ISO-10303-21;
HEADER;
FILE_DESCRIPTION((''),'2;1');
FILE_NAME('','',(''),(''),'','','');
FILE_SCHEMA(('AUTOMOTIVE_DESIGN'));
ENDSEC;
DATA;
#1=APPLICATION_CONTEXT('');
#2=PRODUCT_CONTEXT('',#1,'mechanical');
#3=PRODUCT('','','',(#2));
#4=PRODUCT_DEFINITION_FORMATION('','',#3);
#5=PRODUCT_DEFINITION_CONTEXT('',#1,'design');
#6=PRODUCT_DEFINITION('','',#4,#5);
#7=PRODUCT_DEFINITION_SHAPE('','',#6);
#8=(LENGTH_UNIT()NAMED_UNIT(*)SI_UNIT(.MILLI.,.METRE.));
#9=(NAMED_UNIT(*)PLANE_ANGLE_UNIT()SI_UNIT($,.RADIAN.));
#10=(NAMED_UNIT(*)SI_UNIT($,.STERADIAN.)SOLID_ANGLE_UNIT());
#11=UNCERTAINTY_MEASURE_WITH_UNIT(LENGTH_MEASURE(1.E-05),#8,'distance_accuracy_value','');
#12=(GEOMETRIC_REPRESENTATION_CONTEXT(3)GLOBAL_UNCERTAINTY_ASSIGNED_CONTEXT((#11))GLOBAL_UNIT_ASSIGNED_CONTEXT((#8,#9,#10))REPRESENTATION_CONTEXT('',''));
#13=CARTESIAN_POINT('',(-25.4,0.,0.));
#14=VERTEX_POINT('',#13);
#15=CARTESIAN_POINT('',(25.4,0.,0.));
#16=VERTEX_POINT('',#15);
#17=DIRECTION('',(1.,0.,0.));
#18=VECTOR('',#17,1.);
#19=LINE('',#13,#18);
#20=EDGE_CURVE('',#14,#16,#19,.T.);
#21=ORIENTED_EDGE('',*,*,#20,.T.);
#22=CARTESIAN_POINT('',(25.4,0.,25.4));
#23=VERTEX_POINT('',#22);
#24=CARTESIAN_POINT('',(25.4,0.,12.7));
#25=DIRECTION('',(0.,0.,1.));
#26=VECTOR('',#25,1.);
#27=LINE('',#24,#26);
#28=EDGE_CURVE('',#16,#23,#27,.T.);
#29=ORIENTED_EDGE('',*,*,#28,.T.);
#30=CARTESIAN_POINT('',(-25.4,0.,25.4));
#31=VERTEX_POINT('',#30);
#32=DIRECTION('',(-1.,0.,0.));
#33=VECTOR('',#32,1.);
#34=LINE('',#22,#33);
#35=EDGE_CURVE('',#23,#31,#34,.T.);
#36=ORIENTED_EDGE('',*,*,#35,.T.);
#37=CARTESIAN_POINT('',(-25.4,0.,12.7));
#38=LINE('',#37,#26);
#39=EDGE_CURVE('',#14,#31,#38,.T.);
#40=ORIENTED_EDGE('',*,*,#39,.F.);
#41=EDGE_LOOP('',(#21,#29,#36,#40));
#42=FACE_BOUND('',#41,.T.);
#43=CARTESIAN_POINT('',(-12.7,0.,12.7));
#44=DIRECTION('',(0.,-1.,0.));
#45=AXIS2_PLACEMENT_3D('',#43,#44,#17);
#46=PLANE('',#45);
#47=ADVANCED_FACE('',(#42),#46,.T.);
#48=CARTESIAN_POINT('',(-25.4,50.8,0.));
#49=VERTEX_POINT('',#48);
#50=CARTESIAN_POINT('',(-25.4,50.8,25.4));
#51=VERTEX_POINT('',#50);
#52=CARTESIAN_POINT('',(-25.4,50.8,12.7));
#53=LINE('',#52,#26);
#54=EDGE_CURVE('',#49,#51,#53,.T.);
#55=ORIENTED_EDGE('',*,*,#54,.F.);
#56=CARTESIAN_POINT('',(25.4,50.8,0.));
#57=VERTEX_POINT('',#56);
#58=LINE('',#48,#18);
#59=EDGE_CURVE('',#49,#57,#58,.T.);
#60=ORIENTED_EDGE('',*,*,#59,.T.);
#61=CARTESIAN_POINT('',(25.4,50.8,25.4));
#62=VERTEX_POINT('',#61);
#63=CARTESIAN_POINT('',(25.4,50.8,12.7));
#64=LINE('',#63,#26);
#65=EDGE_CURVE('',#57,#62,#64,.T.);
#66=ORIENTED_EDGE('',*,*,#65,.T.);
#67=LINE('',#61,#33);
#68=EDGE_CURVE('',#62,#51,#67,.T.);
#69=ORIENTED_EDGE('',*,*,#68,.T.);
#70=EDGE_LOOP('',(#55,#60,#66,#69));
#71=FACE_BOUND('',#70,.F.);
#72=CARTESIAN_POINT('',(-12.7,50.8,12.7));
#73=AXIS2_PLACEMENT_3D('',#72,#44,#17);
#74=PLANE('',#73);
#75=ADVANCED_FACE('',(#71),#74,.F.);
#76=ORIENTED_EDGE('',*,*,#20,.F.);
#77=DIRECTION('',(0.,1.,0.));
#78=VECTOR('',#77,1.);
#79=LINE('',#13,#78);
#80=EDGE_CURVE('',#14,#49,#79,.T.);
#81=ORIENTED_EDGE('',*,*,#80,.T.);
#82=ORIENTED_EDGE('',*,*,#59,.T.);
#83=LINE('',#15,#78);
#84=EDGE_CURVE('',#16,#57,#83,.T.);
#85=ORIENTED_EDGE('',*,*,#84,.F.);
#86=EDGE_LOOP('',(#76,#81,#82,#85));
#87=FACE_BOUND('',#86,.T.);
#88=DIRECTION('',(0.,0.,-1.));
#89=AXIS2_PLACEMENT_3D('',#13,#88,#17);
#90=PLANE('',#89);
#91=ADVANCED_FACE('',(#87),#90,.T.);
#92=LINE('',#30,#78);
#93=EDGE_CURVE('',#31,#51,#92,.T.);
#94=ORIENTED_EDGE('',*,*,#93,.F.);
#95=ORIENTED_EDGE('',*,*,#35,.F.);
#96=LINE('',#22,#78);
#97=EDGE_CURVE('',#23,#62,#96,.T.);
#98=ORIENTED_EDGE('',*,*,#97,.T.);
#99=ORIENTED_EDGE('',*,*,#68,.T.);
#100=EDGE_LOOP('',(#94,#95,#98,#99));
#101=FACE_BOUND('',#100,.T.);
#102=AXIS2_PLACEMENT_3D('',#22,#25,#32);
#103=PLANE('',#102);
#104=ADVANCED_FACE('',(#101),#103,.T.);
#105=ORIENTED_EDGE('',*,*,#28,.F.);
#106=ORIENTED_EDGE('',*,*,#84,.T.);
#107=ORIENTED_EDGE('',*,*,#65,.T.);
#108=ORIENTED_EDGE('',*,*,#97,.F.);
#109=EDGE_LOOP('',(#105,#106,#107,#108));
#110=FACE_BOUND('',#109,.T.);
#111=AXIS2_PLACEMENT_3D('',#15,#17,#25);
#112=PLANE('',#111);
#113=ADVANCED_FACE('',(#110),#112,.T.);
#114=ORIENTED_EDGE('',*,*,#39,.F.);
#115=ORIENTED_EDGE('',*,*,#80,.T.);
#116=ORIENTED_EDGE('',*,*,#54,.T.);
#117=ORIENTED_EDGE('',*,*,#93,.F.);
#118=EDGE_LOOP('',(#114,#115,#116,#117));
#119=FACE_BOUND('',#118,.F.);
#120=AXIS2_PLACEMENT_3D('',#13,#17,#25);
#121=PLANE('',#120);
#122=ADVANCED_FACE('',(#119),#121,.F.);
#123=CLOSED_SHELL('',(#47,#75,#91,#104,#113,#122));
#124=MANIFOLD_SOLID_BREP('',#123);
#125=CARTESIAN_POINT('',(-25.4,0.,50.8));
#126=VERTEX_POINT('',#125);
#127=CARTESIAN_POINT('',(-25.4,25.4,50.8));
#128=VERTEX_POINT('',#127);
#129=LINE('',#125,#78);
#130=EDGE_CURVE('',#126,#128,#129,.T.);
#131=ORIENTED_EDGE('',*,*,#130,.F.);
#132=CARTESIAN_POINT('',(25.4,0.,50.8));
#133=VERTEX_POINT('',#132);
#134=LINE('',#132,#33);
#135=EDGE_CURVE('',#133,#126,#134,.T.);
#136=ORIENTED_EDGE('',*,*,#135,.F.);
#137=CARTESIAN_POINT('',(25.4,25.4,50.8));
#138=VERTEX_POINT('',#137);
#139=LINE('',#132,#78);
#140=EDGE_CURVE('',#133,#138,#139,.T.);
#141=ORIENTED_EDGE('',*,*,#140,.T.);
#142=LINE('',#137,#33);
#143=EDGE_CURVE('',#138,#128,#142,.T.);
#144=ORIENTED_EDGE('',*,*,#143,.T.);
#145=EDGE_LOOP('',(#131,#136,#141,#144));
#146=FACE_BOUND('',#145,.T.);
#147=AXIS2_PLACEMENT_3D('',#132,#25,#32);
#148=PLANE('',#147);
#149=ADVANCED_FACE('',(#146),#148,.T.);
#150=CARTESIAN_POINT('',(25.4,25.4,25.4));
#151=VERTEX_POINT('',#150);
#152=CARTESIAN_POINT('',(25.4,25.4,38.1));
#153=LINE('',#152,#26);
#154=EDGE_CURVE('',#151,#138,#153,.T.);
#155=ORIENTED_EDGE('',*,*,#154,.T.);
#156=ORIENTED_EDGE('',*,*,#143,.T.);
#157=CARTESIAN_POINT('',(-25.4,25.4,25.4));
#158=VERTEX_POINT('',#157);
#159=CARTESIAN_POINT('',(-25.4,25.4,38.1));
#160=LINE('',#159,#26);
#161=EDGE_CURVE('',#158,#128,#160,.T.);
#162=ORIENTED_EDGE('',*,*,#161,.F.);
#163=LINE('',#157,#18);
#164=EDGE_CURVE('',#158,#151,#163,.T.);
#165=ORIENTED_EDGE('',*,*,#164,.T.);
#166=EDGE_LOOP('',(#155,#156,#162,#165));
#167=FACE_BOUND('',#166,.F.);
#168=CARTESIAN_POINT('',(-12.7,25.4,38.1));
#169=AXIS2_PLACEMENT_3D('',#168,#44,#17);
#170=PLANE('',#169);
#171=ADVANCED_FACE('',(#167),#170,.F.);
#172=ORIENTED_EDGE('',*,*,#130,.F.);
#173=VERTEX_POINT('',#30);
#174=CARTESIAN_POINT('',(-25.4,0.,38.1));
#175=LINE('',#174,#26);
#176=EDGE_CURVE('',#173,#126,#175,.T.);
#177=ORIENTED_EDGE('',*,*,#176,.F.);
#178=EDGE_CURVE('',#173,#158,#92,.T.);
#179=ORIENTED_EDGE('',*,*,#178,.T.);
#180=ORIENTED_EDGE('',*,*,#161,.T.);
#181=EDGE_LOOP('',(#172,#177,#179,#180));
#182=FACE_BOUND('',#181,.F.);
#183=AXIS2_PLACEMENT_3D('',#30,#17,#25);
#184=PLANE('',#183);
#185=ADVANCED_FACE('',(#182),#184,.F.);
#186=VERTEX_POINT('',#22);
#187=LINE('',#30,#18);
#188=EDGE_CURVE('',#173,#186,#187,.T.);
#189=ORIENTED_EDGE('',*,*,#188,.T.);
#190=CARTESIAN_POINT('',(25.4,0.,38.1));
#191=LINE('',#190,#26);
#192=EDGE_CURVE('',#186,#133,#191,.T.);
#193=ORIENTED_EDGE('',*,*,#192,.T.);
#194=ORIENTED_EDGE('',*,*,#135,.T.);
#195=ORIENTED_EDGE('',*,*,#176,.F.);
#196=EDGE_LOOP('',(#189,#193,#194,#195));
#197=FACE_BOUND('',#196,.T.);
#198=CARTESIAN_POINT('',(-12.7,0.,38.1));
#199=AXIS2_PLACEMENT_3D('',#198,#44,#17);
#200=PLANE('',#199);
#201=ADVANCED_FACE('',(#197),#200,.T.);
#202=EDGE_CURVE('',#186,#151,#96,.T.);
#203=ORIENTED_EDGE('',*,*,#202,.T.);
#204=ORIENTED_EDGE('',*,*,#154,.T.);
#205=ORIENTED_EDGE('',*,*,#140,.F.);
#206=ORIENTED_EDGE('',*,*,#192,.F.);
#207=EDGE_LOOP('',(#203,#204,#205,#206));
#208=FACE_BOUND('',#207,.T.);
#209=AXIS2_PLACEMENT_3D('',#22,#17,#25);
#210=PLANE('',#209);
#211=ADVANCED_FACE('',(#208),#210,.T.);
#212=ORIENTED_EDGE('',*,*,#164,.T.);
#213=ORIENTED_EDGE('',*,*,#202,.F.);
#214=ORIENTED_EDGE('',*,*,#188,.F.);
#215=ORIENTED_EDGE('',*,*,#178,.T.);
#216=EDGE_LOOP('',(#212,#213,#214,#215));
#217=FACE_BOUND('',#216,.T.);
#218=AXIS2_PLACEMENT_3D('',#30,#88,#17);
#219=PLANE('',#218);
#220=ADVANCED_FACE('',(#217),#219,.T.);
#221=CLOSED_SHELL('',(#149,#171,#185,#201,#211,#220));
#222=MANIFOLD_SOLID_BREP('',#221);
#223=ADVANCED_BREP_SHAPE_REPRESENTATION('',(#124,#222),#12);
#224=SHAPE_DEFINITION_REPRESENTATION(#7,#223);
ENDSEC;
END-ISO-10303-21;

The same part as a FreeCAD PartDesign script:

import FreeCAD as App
import Part
import Sketcher
from FreeCAD import Vector
Q = App.Units.Quantity


def add_polygon(sketch, points):
    """Adds a closed chain of lines whose ends are joined by coincident constraints."""
    first, n = sketch.GeometryCount, len(points)
    for a, b in zip(points, points[1:] + points[:1]):
        sketch.addGeometry(Part.LineSegment(App.Vector(*a, 0), App.Vector(*b, 0)), False)
    for i in range(n):
        sketch.addConstraint(Sketcher.Constraint("Coincident", first + i, 2, first + (i + 1) % n, 1))

doc = App.newDocument("Part")
params = doc.addObject("Spreadsheet::Sheet", "Params")
for row, (alias, value) in enumerate([
    ("sketch1_width", "2 in"),
    ("sketch1_height", "1 in"),
    ("pad1_length", "2 in"),
    ("sketch2_width", "2 in"),
    ("sketch2_height", "1 in"),
    ("pad2_length", "1 in"),
], start=1):
    params.set(f"A{row}", alias)
    params.set(f"B{row}", "=" + value)
    params.setAlias(f"B{row}", alias)

body = doc.addObject("PartDesign::Body", "Body")

# Sketch on XZ plane
sketch1 = doc.addObject("Sketcher::SketchObject", "Sketch")
body.addObject(sketch1)
sketch1.AttachmentSupport = (doc.XZ_Plane, [""])
sketch1.MapMode = "FlatFace"
add_polygon(sketch1, [(-25, 25), (-25, 0), (25, 0), (25, 25)])  # lines 0-3
sketch1.addConstraint([
    Sketcher.Constraint("Vertical", 0),
    Sketcher.Constraint("Horizontal", 1),
    Sketcher.Constraint("Vertical", 2),
    Sketcher.Constraint("Horizontal", 3),
    Sketcher.Constraint("Symmetric", 0, 2, 1, 2, -1, 1),
    Sketcher.Constraint("DistanceX", 1, 1, 1, 2, Q("2 in")),
    Sketcher.Constraint("DistanceY", 0, 2, 0, 1, Q("1 in")),
])
sketch1.setExpression("Constraints[9]", "Params.sketch1_width")
sketch1.setExpression("Constraints[10]", "Params.sketch1_height")
pad1 = doc.addObject("PartDesign::Pad", "Pad")
body.addObject(pad1)
pad1.Profile = sketch1
pad1.setExpression("Length", "Params.pad1_length")
pad1.Reversed = True
body2 = doc.addObject("PartDesign::Body", "Body001")

# Sketch on XZ plane
sketch2 = doc.addObject("Sketcher::SketchObject", "Sketch001")
body2.addObject(sketch2)
sketch2.AttachmentSupport = (doc.getObject("XZ_Plane001"), [""])
sketch2.MapMode = "FlatFace"
add_polygon(sketch2, [(-25, 51), (-25, 25), (25, 25), (25, 51)])  # lines 0-3
sketch2.addConstraint([
    Sketcher.Constraint("Vertical", 0),
    Sketcher.Constraint("Horizontal", 1),
    Sketcher.Constraint("Vertical", 2),
    Sketcher.Constraint("Horizontal", 3),
    Sketcher.Constraint("DistanceX", 1, 1, 1, 2, Q("2 in")),
    Sketcher.Constraint("DistanceY", 0, 2, 0, 1, Q("1 in")),
    Sketcher.Constraint("DistanceX", 0, 2, -1, 1, Q("1 in")),
    Sketcher.Constraint("DistanceY", -1, 1, 0, 2, Q("1 in")),
])
sketch2.setExpression("Constraints[8]", "Params.sketch2_width")
sketch2.setExpression("Constraints[9]", "Params.sketch2_height")
pad2 = doc.addObject("PartDesign::Pad", "Pad001")
body2.addObject(pad2)
pad2.Profile = sketch2
pad2.setExpression("Length", "Params.pad2_length")
pad2.Reversed = True

doc.recompute()
